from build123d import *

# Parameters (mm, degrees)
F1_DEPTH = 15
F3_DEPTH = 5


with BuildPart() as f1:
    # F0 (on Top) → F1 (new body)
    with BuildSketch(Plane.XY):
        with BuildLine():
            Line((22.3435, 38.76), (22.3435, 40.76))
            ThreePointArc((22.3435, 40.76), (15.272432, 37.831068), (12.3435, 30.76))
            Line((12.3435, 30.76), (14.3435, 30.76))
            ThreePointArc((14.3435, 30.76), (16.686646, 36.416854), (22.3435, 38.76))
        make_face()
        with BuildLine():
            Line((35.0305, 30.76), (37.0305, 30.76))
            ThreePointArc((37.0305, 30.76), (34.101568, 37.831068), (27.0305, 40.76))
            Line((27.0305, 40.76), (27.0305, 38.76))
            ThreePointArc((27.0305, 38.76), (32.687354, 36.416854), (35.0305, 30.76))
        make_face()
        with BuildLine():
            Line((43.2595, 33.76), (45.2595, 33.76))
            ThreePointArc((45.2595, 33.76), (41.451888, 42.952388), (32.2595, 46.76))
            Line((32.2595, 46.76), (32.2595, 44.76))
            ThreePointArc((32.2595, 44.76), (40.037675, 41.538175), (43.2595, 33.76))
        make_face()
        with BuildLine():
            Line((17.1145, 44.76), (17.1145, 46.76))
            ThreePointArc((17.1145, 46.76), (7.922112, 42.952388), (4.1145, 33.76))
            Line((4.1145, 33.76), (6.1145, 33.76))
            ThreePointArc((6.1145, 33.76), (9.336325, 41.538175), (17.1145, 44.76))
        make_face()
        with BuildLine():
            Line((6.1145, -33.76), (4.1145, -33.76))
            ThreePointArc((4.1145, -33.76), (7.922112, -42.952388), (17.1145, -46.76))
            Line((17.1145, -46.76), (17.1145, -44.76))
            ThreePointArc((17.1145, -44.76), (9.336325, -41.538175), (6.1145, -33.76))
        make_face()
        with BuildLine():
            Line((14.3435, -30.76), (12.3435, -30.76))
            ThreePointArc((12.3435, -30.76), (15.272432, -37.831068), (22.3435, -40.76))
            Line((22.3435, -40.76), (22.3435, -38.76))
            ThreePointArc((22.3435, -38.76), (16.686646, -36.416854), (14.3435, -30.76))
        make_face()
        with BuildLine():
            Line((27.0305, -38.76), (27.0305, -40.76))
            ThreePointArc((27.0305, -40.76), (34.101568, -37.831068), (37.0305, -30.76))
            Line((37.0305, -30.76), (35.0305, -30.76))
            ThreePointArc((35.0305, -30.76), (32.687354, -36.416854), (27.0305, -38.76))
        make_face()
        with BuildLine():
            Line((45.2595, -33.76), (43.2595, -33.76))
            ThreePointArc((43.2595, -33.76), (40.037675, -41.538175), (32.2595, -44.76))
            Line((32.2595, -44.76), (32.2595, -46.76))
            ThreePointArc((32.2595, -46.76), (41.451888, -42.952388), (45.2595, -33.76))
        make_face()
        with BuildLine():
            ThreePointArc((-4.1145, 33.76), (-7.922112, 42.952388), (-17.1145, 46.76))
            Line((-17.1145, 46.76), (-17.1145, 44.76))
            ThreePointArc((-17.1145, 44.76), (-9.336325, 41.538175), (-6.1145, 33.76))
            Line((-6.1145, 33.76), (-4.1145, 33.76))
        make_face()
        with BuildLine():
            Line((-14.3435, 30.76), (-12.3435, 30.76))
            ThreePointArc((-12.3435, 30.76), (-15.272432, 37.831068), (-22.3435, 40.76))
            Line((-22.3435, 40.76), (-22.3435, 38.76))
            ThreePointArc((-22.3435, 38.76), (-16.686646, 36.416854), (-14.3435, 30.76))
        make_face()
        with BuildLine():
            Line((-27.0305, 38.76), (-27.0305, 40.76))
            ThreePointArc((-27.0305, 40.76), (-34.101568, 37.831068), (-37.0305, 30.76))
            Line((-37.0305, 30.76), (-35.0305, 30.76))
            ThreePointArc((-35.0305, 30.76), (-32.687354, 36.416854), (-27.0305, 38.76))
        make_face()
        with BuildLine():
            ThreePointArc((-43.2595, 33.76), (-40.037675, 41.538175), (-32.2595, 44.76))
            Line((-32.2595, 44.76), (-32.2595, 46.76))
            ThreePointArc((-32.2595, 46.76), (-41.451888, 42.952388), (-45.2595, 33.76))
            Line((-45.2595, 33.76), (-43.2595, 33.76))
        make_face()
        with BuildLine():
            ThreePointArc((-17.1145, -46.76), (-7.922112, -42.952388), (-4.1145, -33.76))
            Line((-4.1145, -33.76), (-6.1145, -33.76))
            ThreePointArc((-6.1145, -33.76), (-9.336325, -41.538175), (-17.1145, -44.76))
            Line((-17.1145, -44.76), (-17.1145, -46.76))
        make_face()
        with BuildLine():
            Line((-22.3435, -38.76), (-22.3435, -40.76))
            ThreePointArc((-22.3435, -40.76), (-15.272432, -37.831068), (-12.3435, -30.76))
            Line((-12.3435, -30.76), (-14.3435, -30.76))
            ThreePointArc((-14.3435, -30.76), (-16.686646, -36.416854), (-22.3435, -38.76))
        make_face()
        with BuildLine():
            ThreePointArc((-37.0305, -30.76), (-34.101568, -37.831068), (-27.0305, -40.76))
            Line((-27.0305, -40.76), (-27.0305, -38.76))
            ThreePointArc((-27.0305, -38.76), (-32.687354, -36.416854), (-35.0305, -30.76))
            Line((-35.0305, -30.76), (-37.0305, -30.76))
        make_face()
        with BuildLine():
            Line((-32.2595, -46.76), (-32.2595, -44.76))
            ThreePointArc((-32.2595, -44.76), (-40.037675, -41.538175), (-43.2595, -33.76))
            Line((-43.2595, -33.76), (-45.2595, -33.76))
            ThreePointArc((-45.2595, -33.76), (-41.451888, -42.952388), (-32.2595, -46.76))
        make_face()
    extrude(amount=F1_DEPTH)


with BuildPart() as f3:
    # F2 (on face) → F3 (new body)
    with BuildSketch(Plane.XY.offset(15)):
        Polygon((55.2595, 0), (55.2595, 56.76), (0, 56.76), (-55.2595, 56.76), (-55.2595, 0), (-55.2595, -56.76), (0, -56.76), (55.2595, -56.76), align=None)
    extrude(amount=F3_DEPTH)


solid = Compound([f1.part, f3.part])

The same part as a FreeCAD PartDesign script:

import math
import FreeCAD as App
import Part
import Sketcher
Q = App.Units.Quantity


def add_polygon(sketch, points):
    """Adds a closed chain of lines whose ends are joined by coincident constraints."""
    first, n = sketch.GeometryCount, len(points)
    for a, b in zip(points, points[1:] + points[:1]):
        sketch.addGeometry(Part.LineSegment(App.Vector(*a, 0), App.Vector(*b, 0)), False)
    for i in range(n):
        sketch.addConstraint(Sketcher.Constraint("Coincident", first + i, 2, first + (i + 1) % n, 1))

doc = App.newDocument("Part")
body = doc.addObject("PartDesign::Body", "Body")
body.AllowCompound = True

# Sketch on XY plane
sketch1 = body.newObject("Sketcher::SketchObject", "Sketch")
sketch1.AttachmentSupport = (doc.getObject("XY_Plane"), [""])
sketch1.MapMode = "FlatFace"
sketch1.addGeometry([
    Part.LineSegment(App.Vector(22.3, 38.8, 0), App.Vector(22.3, 40.8, 0)),  # 0
    Part.ArcOfCircle(Part.Circle(App.Vector(22.3, 30.8, 0), App.Vector(0, 0, 1), 10), math.radians(90), math.radians(180)),  # 1
    Part.LineSegment(App.Vector(12.3, 30.8, 0), App.Vector(14.3, 30.8, 0)),  # 2
    Part.ArcOfCircle(Part.Circle(App.Vector(22.3, 30.8, 0), App.Vector(0, 0, 1), 8), math.radians(90), math.radians(180)),  # 3
    Part.LineSegment(App.Vector(35, 30.8, 0), App.Vector(37, 30.8, 0)),  # 4
    Part.ArcOfCircle(Part.Circle(App.Vector(27, 30.8, 0), App.Vector(0, 0, 1), 10), math.radians(0), math.radians(90)),  # 5
    Part.LineSegment(App.Vector(27, 40.8, 0), App.Vector(27, 38.8, 0)),  # 6
    Part.ArcOfCircle(Part.Circle(App.Vector(27, 30.8, 0), App.Vector(0, 0, 1), 8), math.radians(0), math.radians(90)),  # 7
    Part.LineSegment(App.Vector(43.3, 33.8, 0), App.Vector(45.3, 33.8, 0)),  # 8
    Part.ArcOfCircle(Part.Circle(App.Vector(32.3, 33.8, 0), App.Vector(0, 0, 1), 13), math.radians(0), math.radians(90)),  # 9
    Part.LineSegment(App.Vector(32.3, 46.8, 0), App.Vector(32.3, 44.8, 0)),  # 10
    Part.ArcOfCircle(Part.Circle(App.Vector(32.3, 33.8, 0), App.Vector(0, 0, 1), 11), math.radians(0), math.radians(90)),  # 11
    Part.LineSegment(App.Vector(17.1, 44.8, 0), App.Vector(17.1, 46.8, 0)),  # 12
    Part.ArcOfCircle(Part.Circle(App.Vector(17.1, 33.8, 0), App.Vector(0, 0, 1), 13), math.radians(90), math.radians(180)),  # 13
    Part.LineSegment(App.Vector(4.1, 33.8, 0), App.Vector(6.1, 33.8, 0)),  # 14
    Part.ArcOfCircle(Part.Circle(App.Vector(17.1, 33.8, 0), App.Vector(0, 0, 1), 11), math.radians(90), math.radians(180)),  # 15
    Part.LineSegment(App.Vector(6.1, -33.8, 0), App.Vector(4.1, -33.8, 0)),  # 16
    Part.ArcOfCircle(Part.Circle(App.Vector(17.1, -33.8, 0), App.Vector(0, 0, 1), 13), math.radians(-180), math.radians(-90)),  # 17
    Part.LineSegment(App.Vector(17.1, -46.8, 0), App.Vector(17.1, -44.8, 0)),  # 18
    Part.ArcOfCircle(Part.Circle(App.Vector(17.1, -33.8, 0), App.Vector(0, 0, 1), 11), math.radians(180), math.radians(270)),  # 19
    Part.LineSegment(App.Vector(14.3, -30.8, 0), App.Vector(12.3, -30.8, 0)),  # 20
    Part.ArcOfCircle(Part.Circle(App.Vector(22.3, -30.8, 0), App.Vector(0, 0, 1), 10), math.radians(180), math.radians(270)),  # 21
    Part.LineSegment(App.Vector(22.3, -40.8, 0), App.Vector(22.3, -38.8, 0)),  # 22
    Part.ArcOfCircle(Part.Circle(App.Vector(22.3, -30.8, 0), App.Vector(0, 0, 1), 8), math.radians(-180), math.radians(-90)),  # 23
    Part.LineSegment(App.Vector(27, -38.8, 0), App.Vector(27, -40.8, 0)),  # 24
    Part.ArcOfCircle(Part.Circle(App.Vector(27, -30.8, 0), App.Vector(0, 0, 1), 10), math.radians(-90), math.radians(0)),  # 25
    Part.LineSegment(App.Vector(37, -30.8, 0), App.Vector(35, -30.8, 0)),  # 26
    Part.ArcOfCircle(Part.Circle(App.Vector(27, -30.8, 0), App.Vector(0, 0, 1), 8), math.radians(-90), math.radians(0)),  # 27
    Part.LineSegment(App.Vector(45.3, -33.8, 0), App.Vector(43.3, -33.8, 0)),  # 28
    Part.ArcOfCircle(Part.Circle(App.Vector(32.3, -33.8, 0), App.Vector(0, 0, 1), 11), math.radians(-90), math.radians(0)),  # 29
    Part.LineSegment(App.Vector(32.3, -44.8, 0), App.Vector(32.3, -46.8, 0)),  # 30
    Part.ArcOfCircle(Part.Circle(App.Vector(32.3, -33.8, 0), App.Vector(0, 0, 1), 13), math.radians(-90), math.radians(0)),  # 31
    Part.ArcOfCircle(Part.Circle(App.Vector(-17.1, 33.8, 0), App.Vector(0, 0, 1), 13), math.radians(0), math.radians(90)),  # 32
    Part.LineSegment(App.Vector(-17.1, 46.8, 0), App.Vector(-17.1, 44.8, 0)),  # 33
    Part.ArcOfCircle(Part.Circle(App.Vector(-17.1, 33.8, 0), App.Vector(0, 0, 1), 11), math.radians(0), math.radians(90)),  # 34
    Part.LineSegment(App.Vector(-6.1, 33.8, 0), App.Vector(-4.1, 33.8, 0)),  # 35
    Part.LineSegment(App.Vector(-14.3, 30.8, 0), App.Vector(-12.3, 30.8, 0)),  # 36
    Part.ArcOfCircle(Part.Circle(App.Vector(-22.3, 30.8, 0), App.Vector(0, 0, 1), 10), math.radians(0), math.radians(90)),  # 37
    Part.LineSegment(App.Vector(-22.3, 40.8, 0), App.Vector(-22.3, 38.8, 0)),  # 38
    Part.ArcOfCircle(Part.Circle(App.Vector(-22.3, 30.8, 0), App.Vector(0, 0, 1), 8), math.radians(0), math.radians(90)),  # 39
    Part.LineSegment(App.Vector(-27, 38.8, 0), App.Vector(-27, 40.8, 0)),  # 40
    Part.ArcOfCircle(Part.Circle(App.Vector(-27, 30.8, 0), App.Vector(0, 0, 1), 10), math.radians(90), math.radians(180)),  # 41
    Part.LineSegment(App.Vector(-37, 30.8, 0), App.Vector(-35, 30.8, 0)),  # 42
    Part.ArcOfCircle(Part.Circle(App.Vector(-27, 30.8, 0), App.Vector(0, 0, 1), 8), math.radians(90), math.radians(180)),  # 43
    Part.ArcOfCircle(Part.Circle(App.Vector(-32.3, 33.8, 0), App.Vector(0, 0, 1), 11), math.radians(90), math.radians(180)),  # 44
    Part.LineSegment(App.Vector(-32.3, 44.8, 0), App.Vector(-32.3, 46.8, 0)),  # 45
    Part.ArcOfCircle(Part.Circle(App.Vector(-32.3, 33.8, 0), App.Vector(0, 0, 1), 13), math.radians(90), math.radians(180)),  # 46
    Part.LineSegment(App.Vector(-45.3, 33.8, 0), App.Vector(-43.3, 33.8, 0)),  # 47
    Part.ArcOfCircle(Part.Circle(App.Vector(-17.1, -33.8, 0), App.Vector(0, 0, 1), 13), math.radians(-90), math.radians(0)),  # 48
    Part.LineSegment(App.Vector(-4.1, -33.8, 0), App.Vector(-6.1, -33.8, 0)),  # 49
    Part.ArcOfCircle(Part.Circle(App.Vector(-17.1, -33.8, 0), App.Vector(0, 0, 1), 11), math.radians(-90), math.radians(0)),  # 50
    Part.LineSegment(App.Vector(-17.1, -44.8, 0), App.Vector(-17.1, -46.8, 0)),  # 51
    Part.LineSegment(App.Vector(-22.3, -38.8, 0), App.Vector(-22.3, -40.8, 0)),  # 52
    Part.ArcOfCircle(Part.Circle(App.Vector(-22.3, -30.8, 0), App.Vector(0, 0, 1), 10), math.radians(-90), math.radians(0)),  # 53
    Part.LineSegment(App.Vector(-12.3, -30.8, 0), App.Vector(-14.3, -30.8, 0)),  # 54
    Part.ArcOfCircle(Part.Circle(App.Vector(-22.3, -30.8, 0), App.Vector(0, 0, 1), 8), math.radians(-90), math.radians(0)),  # 55
    Part.ArcOfCircle(Part.Circle(App.Vector(-27, -30.8, 0), App.Vector(0, 0, 1), 10), math.radians(180), math.radians(270)),  # 56
    Part.LineSegment(App.Vector(-27, -40.8, 0), App.Vector(-27, -38.8, 0)),  # 57
    Part.ArcOfCircle(Part.Circle(App.Vector(-27, -30.8, 0), App.Vector(0, 0, 1), 8), math.radians(-180), math.radians(-90)),  # 58
    Part.LineSegment(App.Vector(-35, -30.8, 0), App.Vector(-37, -30.8, 0)),  # 59
    Part.LineSegment(App.Vector(-32.3, -46.8, 0), App.Vector(-32.3, -44.8, 0)),  # 60
    Part.ArcOfCircle(Part.Circle(App.Vector(-32.3, -33.8, 0), App.Vector(0, 0, 1), 11), math.radians(180), math.radians(270)),  # 61
    Part.LineSegment(App.Vector(-43.3, -33.8, 0), App.Vector(-45.3, -33.8, 0)),  # 62
    Part.ArcOfCircle(Part.Circle(App.Vector(-32.3, -33.8, 0), App.Vector(0, 0, 1), 13), math.radians(-180), math.radians(-90)),  # 63
], False)
sketch1.addConstraint([
    Sketcher.Constraint("Coincident", 0, 2, 1, 1),
    Sketcher.Constraint("Coincident", 1, 2, 2, 1),
    Sketcher.Constraint("Coincident", 2, 2, 3, 2),
    Sketcher.Constraint("Coincident", 3, 1, 0, 1),
    Sketcher.Constraint("Coincident", 4, 2, 5, 1),
    Sketcher.Constraint("Coincident", 5, 2, 6, 1),
    Sketcher.Constraint("Coincident", 6, 2, 7, 2),
    Sketcher.Constraint("Coincident", 7, 1, 4, 1),
    Sketcher.Constraint("Coincident", 8, 2, 9, 1),
    Sketcher.Constraint("Coincident", 9, 2, 10, 1),
    Sketcher.Constraint("Coincident", 10, 2, 11, 2),
    Sketcher.Constraint("Coincident", 11, 1, 8, 1),
    Sketcher.Constraint("Coincident", 12, 2, 13, 1),
    Sketcher.Constraint("Coincident", 13, 2, 14, 1),
    Sketcher.Constraint("Coincident", 14, 2, 15, 2),
    Sketcher.Constraint("Coincident", 15, 1, 12, 1),
    Sketcher.Constraint("Coincident", 16, 2, 17, 1),
    Sketcher.Constraint("Coincident", 17, 2, 18, 1),
    Sketcher.Constraint("Coincident", 18, 2, 19, 2),
    Sketcher.Constraint("Coincident", 19, 1, 16, 1),
    Sketcher.Constraint("Coincident", 20, 2, 21, 1),
    Sketcher.Constraint("Coincident", 21, 2, 22, 1),
    Sketcher.Constraint("Coincident", 22, 2, 23, 2),
    Sketcher.Constraint("Coincident", 23, 1, 20, 1),
    Sketcher.Constraint("Coincident", 24, 2, 25, 1),
    Sketcher.Constraint("Coincident", 25, 2, 26, 1),
    Sketcher.Constraint("Coincident", 26, 2, 27, 2),
    Sketcher.Constraint("Coincident", 27, 1, 24, 1),
    Sketcher.Constraint("Coincident", 28, 2, 29, 2),
    Sketcher.Constraint("Coincident", 29, 1, 30, 1),
    Sketcher.Constraint("Coincident", 30, 2, 31, 1),
    Sketcher.Constraint("Coincident", 31, 2, 28, 1),
    Sketcher.Constraint("Coincident", 32, 2, 33, 1),
    Sketcher.Constraint("Coincident", 33, 2, 34, 2),
    Sketcher.Constraint("Coincident", 34, 1, 35, 1),
    Sketcher.Constraint("Coincident", 35, 2, 32, 1),
    Sketcher.Constraint("Coincident", 36, 2, 37, 1),
    Sketcher.Constraint("Coincident", 37, 2, 38, 1),
    Sketcher.Constraint("Coincident", 38, 2, 39, 2),
    Sketcher.Constraint("Coincident", 39, 1, 36, 1),
    Sketcher.Constraint("Coincident", 40, 2, 41, 1),
    Sketcher.Constraint("Coincident", 41, 2, 42, 1),
    Sketcher.Constraint("Coincident", 42, 2, 43, 2),
    Sketcher.Constraint("Coincident", 43, 1, 40, 1),
    Sketcher.Constraint("Coincident", 44, 1, 45, 1),
    Sketcher.Constraint("Coincident", 45, 2, 46, 1),
    Sketcher.Constraint("Coincident", 46, 2, 47, 1),
    Sketcher.Constraint("Coincident", 47, 2, 44, 2),
    Sketcher.Constraint("Coincident", 48, 2, 49, 1),
    Sketcher.Constraint("Coincident", 49, 2, 50, 2),
    Sketcher.Constraint("Coincident", 50, 1, 51, 1),
    Sketcher.Constraint("Coincident", 51, 2, 48, 1),
    Sketcher.Constraint("Coincident", 52, 2, 53, 1),
    Sketcher.Constraint("Coincident", 53, 2, 54, 1),
    Sketcher.Constraint("Coincident", 54, 2, 55, 2),
    Sketcher.Constraint("Coincident", 55, 1, 52, 1),
    Sketcher.Constraint("Coincident", 56, 2, 57, 1),
    Sketcher.Constraint("Coincident", 57, 2, 58, 2),
    Sketcher.Constraint("Coincident", 58, 1, 59, 1),
    Sketcher.Constraint("Coincident", 59, 2, 56, 1),
    Sketcher.Constraint("Coincident", 60, 2, 61, 2),
    Sketcher.Constraint("Coincident", 61, 1, 62, 1),
    Sketcher.Constraint("Coincident", 62, 2, 63, 1),
    Sketcher.Constraint("Coincident", 63, 2, 60, 1),
    Sketcher.Constraint("Vertical", 0),
    Sketcher.Constraint("Horizontal", 2),
    Sketcher.Constraint("Horizontal", 4),
    Sketcher.Constraint("Vertical", 6),
    Sketcher.Constraint("Horizontal", 8),
    Sketcher.Constraint("Vertical", 10),
    Sketcher.Constraint("Vertical", 12),
    Sketcher.Constraint("Horizontal", 14),
    Sketcher.Constraint("Horizontal", 16),
    Sketcher.Constraint("Vertical", 18),
    Sketcher.Constraint("Horizontal", 20),
    Sketcher.Constraint("Vertical", 22),
    Sketcher.Constraint("Vertical", 24),
    Sketcher.Constraint("Horizontal", 26),
    Sketcher.Constraint("Horizontal", 28),
    Sketcher.Constraint("Vertical", 30),
    Sketcher.Constraint("Vertical", 33),
    Sketcher.Constraint("Horizontal", 35),
    Sketcher.Constraint("Horizontal", 36),
    Sketcher.Constraint("Vertical", 38),
    Sketcher.Constraint("Vertical", 40),
    Sketcher.Constraint("Horizontal", 42),
    Sketcher.Constraint("Vertical", 45),
    Sketcher.Constraint("Horizontal", 47),
    Sketcher.Constraint("Horizontal", 49),
    Sketcher.Constraint("Vertical", 51),
    Sketcher.Constraint("Vertical", 52),
    Sketcher.Constraint("Horizontal", 54),
    Sketcher.Constraint("Vertical", 57),
    Sketcher.Constraint("Horizontal", 59),
    Sketcher.Constraint("Vertical", 60),
    Sketcher.Constraint("Horizontal", 62),
    Sketcher.Constraint("Coincident", 3, 3, 1, 3),
    Sketcher.Constraint("Coincident", 7, 3, 5, 3),
    Sketcher.Constraint("Coincident", 11, 3, 9, 3),
    Sketcher.Constraint("Coincident", 15, 3, 13, 3),
    Sketcher.Constraint("Coincident", 19, 3, 17, 3),
    Sketcher.Constraint("Coincident", 23, 3, 21, 3),
    Sketcher.Constraint("Coincident", 27, 3, 25, 3),
    Sketcher.Constraint("Coincident", 31, 3, 29, 3),
    Sketcher.Constraint("Coincident", 34, 3, 32, 3),
    Sketcher.Constraint("Coincident", 39, 3, 37, 3),
    Sketcher.Constraint("Coincident", 43, 3, 41, 3),
    Sketcher.Constraint("Coincident", 46, 3, 44, 3),
    Sketcher.Constraint("Coincident", 50, 3, 48, 3),
    Sketcher.Constraint("Coincident", 55, 3, 53, 3),
    Sketcher.Constraint("Coincident", 58, 3, 56, 3),
    Sketcher.Constraint("Coincident", 63, 3, 61, 3),
    Sketcher.Constraint("Equal", 1, 5),
    Sketcher.Constraint("Equal", 3, 7),
    Sketcher.Constraint("Equal", 9, 13),
    Sketcher.Constraint("Equal", 11, 15),
    Sketcher.Constraint("Equal", 13, 17),
    Sketcher.Constraint("Equal", 15, 19),
    Sketcher.Constraint("Equal", 5, 21),
    Sketcher.Constraint("Equal", 7, 23),
    Sketcher.Constraint("Equal", 21, 25),
    Sketcher.Constraint("Equal", 23, 27),
    Sketcher.Constraint("Equal", 19, 29),
    Sketcher.Constraint("Equal", 17, 31),
    Sketcher.Constraint("Equal", 31, 32),
    Sketcher.Constraint("Equal", 29, 34),
    Sketcher.Constraint("Equal", 25, 37),
    Sketcher.Constraint("Equal", 27, 39),
    Sketcher.Constraint("Equal", 37, 41),
    Sketcher.Constraint("Equal", 39, 43),
    Sketcher.Constraint("Equal", 34, 44),
    Sketcher.Constraint("Equal", 32, 46),
    Sketcher.Constraint("Equal", 46, 48),
    Sketcher.Constraint("Equal", 44, 50),
    Sketcher.Constraint("Equal", 41, 53),
    Sketcher.Constraint("Equal", 43, 55),
    Sketcher.Constraint("Equal", 53, 56),
    Sketcher.Constraint("Equal", 55, 58),
    Sketcher.Constraint("Equal", 50, 61),
    Sketcher.Constraint("Equal", 48, 63),
    Sketcher.Constraint("Symmetric", 17, 3, 32, 3, -1, 1),
    Sketcher.Constraint("Symmetric", 21, 3, 37, 3, -1, 1),
    Sketcher.Constraint("Symmetric", 25, 3, 41, 3, -1, 1),
    Sketcher.Constraint("Symmetric", 29, 3, 44, 3, -1, 1),
    Sketcher.Constraint("Symmetric", 13, 3, 48, 3, -1, 1),
    Sketcher.Constraint("Symmetric", 1, 3, 53, 3, -1, 1),
    Sketcher.Constraint("Symmetric", 5, 3, 56, 3, -1, 1),
    Sketcher.Constraint("Symmetric", 9, 3, 61, 3, -1, 1),
    Sketcher.Constraint("Symmetric", 13, 3, 32, 3, -2),
    Sketcher.Constraint("Symmetric", 1, 3, 37, 3, -2),
    Sketcher.Constraint("Symmetric", 5, 3, 41, 3, -2),
    Sketcher.Constraint("Symmetric", 9, 3, 44, 3, -2),
    Sketcher.Constraint("Horizontal", 3, 3, 5, 3),
    Sketcher.Constraint("Horizontal", 11, 3, 13, 3),
    Sketcher.Constraint("Horizontal", 43, 3, 1, 2),
    Sketcher.Constraint("Horizontal", 2, 2, 4, 2),
    Sketcher.Constraint("Horizontal", 46, 3, 8, 2),
    Sketcher.Constraint("Horizontal", 11, 1, 13, 2),
    Sketcher.Constraint("Horizontal", 63, 3, 16, 2),
    Sketcher.Constraint("Horizontal", 58, 3, 20, 2),
    Sketcher.Constraint("Horizontal", 23, 1, 25, 2),
    Sketcher.Constraint("Horizontal", 19, 1, 28, 2),
    Sketcher.Constraint("Horizontal", 14, 2, 34, 1),
    Sketcher.Constraint("Horizontal", 7, 1, 36, 2),
    Sketcher.Constraint("Horizontal", 39, 1, 41, 2),
    Sketcher.Constraint("Horizontal", 35, 2, 46, 2),
    Sketcher.Constraint("Horizontal", 31, 2, 48, 2),
    Sketcher.Constraint("Horizontal", 26, 2, 53, 2),
    Sketcher.Constraint("Horizontal", 54, 2, 58, 1),
    Sketcher.Constraint("Horizontal", 49, 2, 61, 1),
    Sketcher.Constraint("Vertical", 23, 3, 0, 2),
    Sketcher.Constraint("Vertical", 27, 3, 5, 2),
    Sketcher.Constraint("Vertical", 31, 3, 9, 2),
    Sketcher.Constraint("Vertical", 19, 3, 12, 2),
    Sketcher.Constraint("Vertical", 15, 1, 17, 2),
    Sketcher.Constraint("Vertical", 3, 1, 21, 2),
    Sketcher.Constraint("Vertical", 6, 2, 24, 2),
    Sketcher.Constraint("Vertical", 10, 2, 29, 1),
    Sketcher.Constraint("Vertical", 50, 3, 32, 2),
    Sketcher.Constraint("Vertical", 55, 3, 37, 2),
    Sketcher.Constraint("Vertical", 58, 3, 40, 2),
    Sketcher.Constraint("Vertical", 63, 3, 44, 1),
    Sketcher.Constraint("Vertical", 33, 2, 50, 1),
    Sketcher.Constraint("Vertical", 38, 2, 52, 2),
    Sketcher.Constraint("Vertical", 43, 1, 56, 2),
    Sketcher.Constraint("Vertical", 45, 2, 60, 2),
    Sketcher.Constraint("Equal", 4, 8),
    Sketcher.Constraint("Radius", 1, Q("9.999999 mm")),
    Sketcher.Constraint("Radius", 3, Q("8.000001 mm")),
    Sketcher.Constraint("Radius", 9, Q("13.000001 mm")),
    Sketcher.Constraint("DistanceY", -1, 1, 1, 3, Q("30.760001 mm")),
    Sketcher.Constraint("DistanceY", -1, 1, 9, 3, Q("33.759999 mm")),
    Sketcher.Constraint("DistanceX", -1, 1, 1, 3, Q("22.343499 mm")),
    Sketcher.Constraint("DistanceX", -1, 1, 5, 3, Q("27.030501 mm")),
    Sketcher.Constraint("DistanceX", -1, 1, 9, 3, Q("32.259499 mm")),
    Sketcher.Constraint("DistanceX", -1, 1, 13, 3, Q("17.114501 mm")),
])
pad1 = body.newObject("PartDesign::Pad", "Pad")
pad1.Profile = sketch1
pad1.Length = 15
body2 = doc.addObject("PartDesign::Body", "Body001")

# Sketch on XY plane
sketch2 = body2.newObject("Sketcher::SketchObject", "Sketch001")
sketch2.AttachmentSupport = (doc.getObject("XY_Plane001"), [""])
sketch2.MapMode = "FlatFace"
sketch2.AttachmentOffset = App.Placement(App.Vector(0, 0, 15), App.Rotation())
add_polygon(sketch2, [(55, 57), (-55, 57), (-55, -57), (55, -57)])  # lines 0-3
sketch2.addConstraint([
    Sketcher.Constraint("Horizontal", 0),
    Sketcher.Constraint("Vertical", 1),
    Sketcher.Constraint("Horizontal", 2),
    Sketcher.Constraint("Vertical", 3),
    Sketcher.Constraint("Symmetric", 0, 2, 2, 2, -1, 1),
    Sketcher.Constraint("DistanceY", 1, 2, 1, 1, Q("113.52 mm")),
    Sketcher.Constraint("DistanceX", 0, 2, 0, 1, Q("110.519 mm")),
])
pad2 = body2.newObject("PartDesign::Pad", "Pad001")
pad2.Profile = sketch2
pad2.Length = 5

doc.recompute()
